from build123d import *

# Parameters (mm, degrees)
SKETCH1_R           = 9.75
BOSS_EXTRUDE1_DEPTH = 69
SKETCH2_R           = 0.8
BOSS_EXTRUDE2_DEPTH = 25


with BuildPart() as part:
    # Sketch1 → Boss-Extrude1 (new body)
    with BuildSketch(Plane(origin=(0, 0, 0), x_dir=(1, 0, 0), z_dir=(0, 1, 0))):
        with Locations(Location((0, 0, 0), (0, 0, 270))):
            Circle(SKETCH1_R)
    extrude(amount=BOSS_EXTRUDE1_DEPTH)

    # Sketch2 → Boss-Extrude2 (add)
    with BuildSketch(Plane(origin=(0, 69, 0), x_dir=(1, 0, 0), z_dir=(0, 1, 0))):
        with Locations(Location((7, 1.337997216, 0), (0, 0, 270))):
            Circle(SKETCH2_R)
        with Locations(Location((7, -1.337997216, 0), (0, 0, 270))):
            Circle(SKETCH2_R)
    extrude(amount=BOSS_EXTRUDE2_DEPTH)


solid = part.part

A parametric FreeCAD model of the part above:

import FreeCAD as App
import Part
import Sketcher

V = App.Vector
Q = App.Units.Quantity

doc = App.newDocument("Part")
body = doc.addObject("PartDesign::Body", "Body")

# Sketch on XZ plane
sketch1 = body.newObject("Sketcher::SketchObject", "Sketch")
sketch1.AttachmentSupport = (doc.getObject("XZ_Plane"), [""])
sketch1.MapMode = "FlatFace"
sketch1.addGeometry(Part.Circle(V(0, 0, 0), V(0, 0, 1), 10), False)
sketch1.addConstraint(Sketcher.Constraint("Coincident", 0, 3, -1, 1))
sketch1.addConstraint(Sketcher.Constraint("Diameter", 0, Q("19.5 mm")))
pad1 = body.newObject("PartDesign::Pad", "Pad")
pad1.Profile = sketch1
pad1.Length = 69
pad1.Reversed = True

# Sketch on XZ plane
sketch2 = body.newObject("Sketcher::SketchObject", "Sketch001")
sketch2.AttachmentSupport = (doc.getObject("XZ_Plane"), [""])
sketch2.MapMode = "FlatFace"
sketch2.AttachmentOffset = App.Placement(V(0, 0, -69), App.Rotation())
sketch2.addGeometry(Part.Circle(V(7, -1.3, 0), V(0, 0, 1), 0.8), False)
sketch2.addGeometry(Part.Circle(V(7, 1.3, 0), V(0, 0, 1), 0.8), False)
sketch2.addConstraint(Sketcher.Constraint("Equal", 0, 1))
sketch2.addConstraint(Sketcher.Constraint("Symmetric", 0, 3, 1, 3, -1))
sketch2.addConstraint(Sketcher.Constraint("Diameter", 0, Q("1.6 mm")))
sketch2.addConstraint(Sketcher.Constraint("DistanceX", -1, 1, 0, 3, Q("7 mm")))
sketch2.addConstraint(Sketcher.Constraint("DistanceY", 0, 3, -1, 1, Q("1.337997 mm")))
pad2 = body.newObject("PartDesign::Pad", "Pad001")
pad2.Profile = sketch2
pad2.Length = 25
pad2.Reversed = True

doc.recompute()
